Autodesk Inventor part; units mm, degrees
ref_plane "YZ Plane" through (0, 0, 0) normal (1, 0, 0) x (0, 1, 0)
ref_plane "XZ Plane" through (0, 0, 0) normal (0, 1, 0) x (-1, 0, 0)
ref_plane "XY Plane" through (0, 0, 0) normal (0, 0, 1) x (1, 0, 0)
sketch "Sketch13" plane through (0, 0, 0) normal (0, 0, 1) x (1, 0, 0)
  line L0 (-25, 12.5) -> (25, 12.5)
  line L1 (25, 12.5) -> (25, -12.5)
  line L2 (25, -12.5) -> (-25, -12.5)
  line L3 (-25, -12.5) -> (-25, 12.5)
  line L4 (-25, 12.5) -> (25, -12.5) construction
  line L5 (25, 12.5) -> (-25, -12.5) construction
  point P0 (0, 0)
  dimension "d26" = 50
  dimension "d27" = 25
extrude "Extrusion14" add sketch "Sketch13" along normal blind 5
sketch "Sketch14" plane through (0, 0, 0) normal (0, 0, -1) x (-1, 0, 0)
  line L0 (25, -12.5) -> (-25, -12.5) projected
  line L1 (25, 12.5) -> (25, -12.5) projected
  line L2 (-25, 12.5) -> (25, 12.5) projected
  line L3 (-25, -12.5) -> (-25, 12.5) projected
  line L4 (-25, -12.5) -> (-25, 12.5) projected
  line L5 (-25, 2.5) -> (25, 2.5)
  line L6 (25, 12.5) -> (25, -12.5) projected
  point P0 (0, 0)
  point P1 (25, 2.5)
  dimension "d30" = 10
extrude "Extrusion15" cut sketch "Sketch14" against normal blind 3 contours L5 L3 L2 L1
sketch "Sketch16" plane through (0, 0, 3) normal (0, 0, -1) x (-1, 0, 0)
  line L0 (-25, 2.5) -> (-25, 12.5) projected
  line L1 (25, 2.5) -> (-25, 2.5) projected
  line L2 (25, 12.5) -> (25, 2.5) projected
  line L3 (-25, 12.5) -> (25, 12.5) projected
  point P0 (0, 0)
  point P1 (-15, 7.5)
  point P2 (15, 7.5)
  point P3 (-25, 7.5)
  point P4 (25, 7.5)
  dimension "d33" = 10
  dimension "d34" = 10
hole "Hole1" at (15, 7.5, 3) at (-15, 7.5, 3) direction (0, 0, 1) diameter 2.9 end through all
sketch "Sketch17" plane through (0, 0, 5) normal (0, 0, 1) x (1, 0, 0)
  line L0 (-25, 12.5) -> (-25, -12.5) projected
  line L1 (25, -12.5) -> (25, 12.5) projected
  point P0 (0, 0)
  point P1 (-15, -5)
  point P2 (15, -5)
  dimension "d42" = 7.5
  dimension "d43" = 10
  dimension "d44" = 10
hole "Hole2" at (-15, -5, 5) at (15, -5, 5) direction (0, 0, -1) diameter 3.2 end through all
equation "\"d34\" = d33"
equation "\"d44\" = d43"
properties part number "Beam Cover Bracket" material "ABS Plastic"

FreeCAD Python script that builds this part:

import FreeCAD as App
import Part
import Sketcher
Q = App.Units.Quantity


def add_polygon(sketch, points):
    """Adds a closed chain of lines whose ends are joined by coincident constraints."""
    first, n = sketch.GeometryCount, len(points)
    for a, b in zip(points, points[1:] + points[:1]):
        sketch.addGeometry(Part.LineSegment(App.Vector(*a, 0), App.Vector(*b, 0)), False)
    for i in range(n):
        sketch.addConstraint(Sketcher.Constraint("Coincident", first + i, 2, first + (i + 1) % n, 1))

doc = App.newDocument("Part")
body = doc.addObject("PartDesign::Body", "Body")

# Sketch on XY plane
sketch1 = doc.addObject("Sketcher::SketchObject", "Sketch")
body.addObject(sketch1)
sketch1.AttachmentSupport = (doc.XY_Plane, [""])
sketch1.MapMode = "FlatFace"
add_polygon(sketch1, [(25, 12), (-25, 12), (-25, -12), (25, -12)])  # lines 0-3
sketch1.addConstraint(Sketcher.Constraint("Horizontal", 0))
sketch1.addConstraint(Sketcher.Constraint("Vertical", 1))
sketch1.addConstraint(Sketcher.Constraint("Horizontal", 2))
sketch1.addConstraint(Sketcher.Constraint("Vertical", 3))
sketch1.addConstraint(Sketcher.Constraint("Symmetric", 0, 2, 2, 2, -1, 1))
sketch1.addConstraint(Sketcher.Constraint("DistanceX", 0, 2, 0, 1, Q("50 mm")))
sketch1.addConstraint(Sketcher.Constraint("DistanceY", 1, 2, 1, 1, Q("25 mm")))
pad1 = doc.addObject("PartDesign::Pad", "Pad")
body.addObject(pad1)
pad1.Profile = sketch1
pad1.Length = 5

# Sketch on XY plane
sketch2 = doc.addObject("Sketcher::SketchObject", "Sketch001")
body.addObject(sketch2)
sketch2.AttachmentSupport = (doc.XY_Plane, [""])
sketch2.MapMode = "FlatFace"
add_polygon(sketch2, [(25, 2), (-25, 2), (-25, 12), (25, 12)])  # lines 0-3
sketch2.addConstraint(Sketcher.Constraint("Horizontal", 0))
sketch2.addConstraint(Sketcher.Constraint("Vertical", 1))
sketch2.addConstraint(Sketcher.Constraint("Horizontal", 2))
sketch2.addConstraint(Sketcher.Constraint("Vertical", 3))
sketch2.addConstraint(Sketcher.Constraint("DistanceY", 1, 1, 1, 2, Q("10 mm")))
sketch2.addConstraint(Sketcher.Constraint("DistanceX", 0, 2, 0, 1, Q("50 mm")))
sketch2.addConstraint(Sketcher.Constraint("DistanceX", 0, 2, -1, 1, Q("25 mm")))
sketch2.addConstraint(Sketcher.Constraint("DistanceY", -1, 1, 0, 2, Q("2.5 mm")))
pocket1 = doc.addObject("PartDesign::Pocket", "Pocket")
body.addObject(pocket1)
pocket1.Profile = sketch2
pocket1.Length = 3
pocket1.Reversed = True

# Sketch on XY plane
sketch3 = doc.addObject("Sketcher::SketchObject", "Sketch002")
body.addObject(sketch3)
sketch3.AttachmentSupport = (doc.XY_Plane, [""])
sketch3.MapMode = "FlatFace"
sketch3.AttachmentOffset = App.Placement(App.Vector(0, 0, 3), App.Rotation())
sketch3.addGeometry(Part.Circle(App.Vector(15, 7.5, 0), App.Vector(0, 0, 1), 1.4), False)
sketch3.addGeometry(Part.Circle(App.Vector(-15, 7.5, 0), App.Vector(0, 0, 1), 1.4), False)
sketch3.addConstraint(Sketcher.Constraint("Equal", 0, 1))
sketch3.addConstraint(Sketcher.Constraint("Symmetric", 0, 3, 1, 3, -2))
sketch3.addConstraint(Sketcher.Constraint("Diameter", 0, Q("2.9 mm")))
sketch3.addConstraint(Sketcher.Constraint("DistanceX", -1, 1, 0, 3, Q("15 mm")))
sketch3.addConstraint(Sketcher.Constraint("DistanceY", -1, 1, 0, 3, Q("7.5 mm")))
doc.recompute()
hole = doc.addObject("PartDesign::Hole", "Hole")
body.addObject(hole)
hole.Profile = sketch3
hole.ThreadType = "None"
hole.Diameter = 2.9
hole.DepthType = "ThroughAll"
hole.Reversed = True

# Sketch on XY plane
sketch4 = doc.addObject("Sketcher::SketchObject", "Sketch003")
body.addObject(sketch4)
sketch4.AttachmentSupport = (doc.XY_Plane, [""])
sketch4.MapMode = "FlatFace"
sketch4.AttachmentOffset = App.Placement(App.Vector(0, 0, 5), App.Rotation())
sketch4.addGeometry(Part.Circle(App.Vector(-15, -5, 0), App.Vector(0, 0, 1), 1.6), False)
sketch4.addGeometry(Part.Circle(App.Vector(15, -5, 0), App.Vector(0, 0, 1), 1.6), False)
sketch4.addConstraint(Sketcher.Constraint("Equal", 0, 1))
sketch4.addConstraint(Sketcher.Constraint("Symmetric", 0, 3, 1, 3, -2))
sketch4.addConstraint(Sketcher.Constraint("Diameter", 0, Q("3.2 mm")))
sketch4.addConstraint(Sketcher.Constraint("DistanceX", 0, 3, -1, 1, Q("15 mm")))
sketch4.addConstraint(Sketcher.Constraint("DistanceY", 0, 3, -1, 1, Q("5 mm")))
doc.recompute()
hole2 = doc.addObject("PartDesign::Hole", "Hole001")
body.addObject(hole2)
hole2.Profile = sketch4
hole2.ThreadType = "None"
hole2.Diameter = 3.2
hole2.DepthType = "ThroughAll"

doc.recompute()
